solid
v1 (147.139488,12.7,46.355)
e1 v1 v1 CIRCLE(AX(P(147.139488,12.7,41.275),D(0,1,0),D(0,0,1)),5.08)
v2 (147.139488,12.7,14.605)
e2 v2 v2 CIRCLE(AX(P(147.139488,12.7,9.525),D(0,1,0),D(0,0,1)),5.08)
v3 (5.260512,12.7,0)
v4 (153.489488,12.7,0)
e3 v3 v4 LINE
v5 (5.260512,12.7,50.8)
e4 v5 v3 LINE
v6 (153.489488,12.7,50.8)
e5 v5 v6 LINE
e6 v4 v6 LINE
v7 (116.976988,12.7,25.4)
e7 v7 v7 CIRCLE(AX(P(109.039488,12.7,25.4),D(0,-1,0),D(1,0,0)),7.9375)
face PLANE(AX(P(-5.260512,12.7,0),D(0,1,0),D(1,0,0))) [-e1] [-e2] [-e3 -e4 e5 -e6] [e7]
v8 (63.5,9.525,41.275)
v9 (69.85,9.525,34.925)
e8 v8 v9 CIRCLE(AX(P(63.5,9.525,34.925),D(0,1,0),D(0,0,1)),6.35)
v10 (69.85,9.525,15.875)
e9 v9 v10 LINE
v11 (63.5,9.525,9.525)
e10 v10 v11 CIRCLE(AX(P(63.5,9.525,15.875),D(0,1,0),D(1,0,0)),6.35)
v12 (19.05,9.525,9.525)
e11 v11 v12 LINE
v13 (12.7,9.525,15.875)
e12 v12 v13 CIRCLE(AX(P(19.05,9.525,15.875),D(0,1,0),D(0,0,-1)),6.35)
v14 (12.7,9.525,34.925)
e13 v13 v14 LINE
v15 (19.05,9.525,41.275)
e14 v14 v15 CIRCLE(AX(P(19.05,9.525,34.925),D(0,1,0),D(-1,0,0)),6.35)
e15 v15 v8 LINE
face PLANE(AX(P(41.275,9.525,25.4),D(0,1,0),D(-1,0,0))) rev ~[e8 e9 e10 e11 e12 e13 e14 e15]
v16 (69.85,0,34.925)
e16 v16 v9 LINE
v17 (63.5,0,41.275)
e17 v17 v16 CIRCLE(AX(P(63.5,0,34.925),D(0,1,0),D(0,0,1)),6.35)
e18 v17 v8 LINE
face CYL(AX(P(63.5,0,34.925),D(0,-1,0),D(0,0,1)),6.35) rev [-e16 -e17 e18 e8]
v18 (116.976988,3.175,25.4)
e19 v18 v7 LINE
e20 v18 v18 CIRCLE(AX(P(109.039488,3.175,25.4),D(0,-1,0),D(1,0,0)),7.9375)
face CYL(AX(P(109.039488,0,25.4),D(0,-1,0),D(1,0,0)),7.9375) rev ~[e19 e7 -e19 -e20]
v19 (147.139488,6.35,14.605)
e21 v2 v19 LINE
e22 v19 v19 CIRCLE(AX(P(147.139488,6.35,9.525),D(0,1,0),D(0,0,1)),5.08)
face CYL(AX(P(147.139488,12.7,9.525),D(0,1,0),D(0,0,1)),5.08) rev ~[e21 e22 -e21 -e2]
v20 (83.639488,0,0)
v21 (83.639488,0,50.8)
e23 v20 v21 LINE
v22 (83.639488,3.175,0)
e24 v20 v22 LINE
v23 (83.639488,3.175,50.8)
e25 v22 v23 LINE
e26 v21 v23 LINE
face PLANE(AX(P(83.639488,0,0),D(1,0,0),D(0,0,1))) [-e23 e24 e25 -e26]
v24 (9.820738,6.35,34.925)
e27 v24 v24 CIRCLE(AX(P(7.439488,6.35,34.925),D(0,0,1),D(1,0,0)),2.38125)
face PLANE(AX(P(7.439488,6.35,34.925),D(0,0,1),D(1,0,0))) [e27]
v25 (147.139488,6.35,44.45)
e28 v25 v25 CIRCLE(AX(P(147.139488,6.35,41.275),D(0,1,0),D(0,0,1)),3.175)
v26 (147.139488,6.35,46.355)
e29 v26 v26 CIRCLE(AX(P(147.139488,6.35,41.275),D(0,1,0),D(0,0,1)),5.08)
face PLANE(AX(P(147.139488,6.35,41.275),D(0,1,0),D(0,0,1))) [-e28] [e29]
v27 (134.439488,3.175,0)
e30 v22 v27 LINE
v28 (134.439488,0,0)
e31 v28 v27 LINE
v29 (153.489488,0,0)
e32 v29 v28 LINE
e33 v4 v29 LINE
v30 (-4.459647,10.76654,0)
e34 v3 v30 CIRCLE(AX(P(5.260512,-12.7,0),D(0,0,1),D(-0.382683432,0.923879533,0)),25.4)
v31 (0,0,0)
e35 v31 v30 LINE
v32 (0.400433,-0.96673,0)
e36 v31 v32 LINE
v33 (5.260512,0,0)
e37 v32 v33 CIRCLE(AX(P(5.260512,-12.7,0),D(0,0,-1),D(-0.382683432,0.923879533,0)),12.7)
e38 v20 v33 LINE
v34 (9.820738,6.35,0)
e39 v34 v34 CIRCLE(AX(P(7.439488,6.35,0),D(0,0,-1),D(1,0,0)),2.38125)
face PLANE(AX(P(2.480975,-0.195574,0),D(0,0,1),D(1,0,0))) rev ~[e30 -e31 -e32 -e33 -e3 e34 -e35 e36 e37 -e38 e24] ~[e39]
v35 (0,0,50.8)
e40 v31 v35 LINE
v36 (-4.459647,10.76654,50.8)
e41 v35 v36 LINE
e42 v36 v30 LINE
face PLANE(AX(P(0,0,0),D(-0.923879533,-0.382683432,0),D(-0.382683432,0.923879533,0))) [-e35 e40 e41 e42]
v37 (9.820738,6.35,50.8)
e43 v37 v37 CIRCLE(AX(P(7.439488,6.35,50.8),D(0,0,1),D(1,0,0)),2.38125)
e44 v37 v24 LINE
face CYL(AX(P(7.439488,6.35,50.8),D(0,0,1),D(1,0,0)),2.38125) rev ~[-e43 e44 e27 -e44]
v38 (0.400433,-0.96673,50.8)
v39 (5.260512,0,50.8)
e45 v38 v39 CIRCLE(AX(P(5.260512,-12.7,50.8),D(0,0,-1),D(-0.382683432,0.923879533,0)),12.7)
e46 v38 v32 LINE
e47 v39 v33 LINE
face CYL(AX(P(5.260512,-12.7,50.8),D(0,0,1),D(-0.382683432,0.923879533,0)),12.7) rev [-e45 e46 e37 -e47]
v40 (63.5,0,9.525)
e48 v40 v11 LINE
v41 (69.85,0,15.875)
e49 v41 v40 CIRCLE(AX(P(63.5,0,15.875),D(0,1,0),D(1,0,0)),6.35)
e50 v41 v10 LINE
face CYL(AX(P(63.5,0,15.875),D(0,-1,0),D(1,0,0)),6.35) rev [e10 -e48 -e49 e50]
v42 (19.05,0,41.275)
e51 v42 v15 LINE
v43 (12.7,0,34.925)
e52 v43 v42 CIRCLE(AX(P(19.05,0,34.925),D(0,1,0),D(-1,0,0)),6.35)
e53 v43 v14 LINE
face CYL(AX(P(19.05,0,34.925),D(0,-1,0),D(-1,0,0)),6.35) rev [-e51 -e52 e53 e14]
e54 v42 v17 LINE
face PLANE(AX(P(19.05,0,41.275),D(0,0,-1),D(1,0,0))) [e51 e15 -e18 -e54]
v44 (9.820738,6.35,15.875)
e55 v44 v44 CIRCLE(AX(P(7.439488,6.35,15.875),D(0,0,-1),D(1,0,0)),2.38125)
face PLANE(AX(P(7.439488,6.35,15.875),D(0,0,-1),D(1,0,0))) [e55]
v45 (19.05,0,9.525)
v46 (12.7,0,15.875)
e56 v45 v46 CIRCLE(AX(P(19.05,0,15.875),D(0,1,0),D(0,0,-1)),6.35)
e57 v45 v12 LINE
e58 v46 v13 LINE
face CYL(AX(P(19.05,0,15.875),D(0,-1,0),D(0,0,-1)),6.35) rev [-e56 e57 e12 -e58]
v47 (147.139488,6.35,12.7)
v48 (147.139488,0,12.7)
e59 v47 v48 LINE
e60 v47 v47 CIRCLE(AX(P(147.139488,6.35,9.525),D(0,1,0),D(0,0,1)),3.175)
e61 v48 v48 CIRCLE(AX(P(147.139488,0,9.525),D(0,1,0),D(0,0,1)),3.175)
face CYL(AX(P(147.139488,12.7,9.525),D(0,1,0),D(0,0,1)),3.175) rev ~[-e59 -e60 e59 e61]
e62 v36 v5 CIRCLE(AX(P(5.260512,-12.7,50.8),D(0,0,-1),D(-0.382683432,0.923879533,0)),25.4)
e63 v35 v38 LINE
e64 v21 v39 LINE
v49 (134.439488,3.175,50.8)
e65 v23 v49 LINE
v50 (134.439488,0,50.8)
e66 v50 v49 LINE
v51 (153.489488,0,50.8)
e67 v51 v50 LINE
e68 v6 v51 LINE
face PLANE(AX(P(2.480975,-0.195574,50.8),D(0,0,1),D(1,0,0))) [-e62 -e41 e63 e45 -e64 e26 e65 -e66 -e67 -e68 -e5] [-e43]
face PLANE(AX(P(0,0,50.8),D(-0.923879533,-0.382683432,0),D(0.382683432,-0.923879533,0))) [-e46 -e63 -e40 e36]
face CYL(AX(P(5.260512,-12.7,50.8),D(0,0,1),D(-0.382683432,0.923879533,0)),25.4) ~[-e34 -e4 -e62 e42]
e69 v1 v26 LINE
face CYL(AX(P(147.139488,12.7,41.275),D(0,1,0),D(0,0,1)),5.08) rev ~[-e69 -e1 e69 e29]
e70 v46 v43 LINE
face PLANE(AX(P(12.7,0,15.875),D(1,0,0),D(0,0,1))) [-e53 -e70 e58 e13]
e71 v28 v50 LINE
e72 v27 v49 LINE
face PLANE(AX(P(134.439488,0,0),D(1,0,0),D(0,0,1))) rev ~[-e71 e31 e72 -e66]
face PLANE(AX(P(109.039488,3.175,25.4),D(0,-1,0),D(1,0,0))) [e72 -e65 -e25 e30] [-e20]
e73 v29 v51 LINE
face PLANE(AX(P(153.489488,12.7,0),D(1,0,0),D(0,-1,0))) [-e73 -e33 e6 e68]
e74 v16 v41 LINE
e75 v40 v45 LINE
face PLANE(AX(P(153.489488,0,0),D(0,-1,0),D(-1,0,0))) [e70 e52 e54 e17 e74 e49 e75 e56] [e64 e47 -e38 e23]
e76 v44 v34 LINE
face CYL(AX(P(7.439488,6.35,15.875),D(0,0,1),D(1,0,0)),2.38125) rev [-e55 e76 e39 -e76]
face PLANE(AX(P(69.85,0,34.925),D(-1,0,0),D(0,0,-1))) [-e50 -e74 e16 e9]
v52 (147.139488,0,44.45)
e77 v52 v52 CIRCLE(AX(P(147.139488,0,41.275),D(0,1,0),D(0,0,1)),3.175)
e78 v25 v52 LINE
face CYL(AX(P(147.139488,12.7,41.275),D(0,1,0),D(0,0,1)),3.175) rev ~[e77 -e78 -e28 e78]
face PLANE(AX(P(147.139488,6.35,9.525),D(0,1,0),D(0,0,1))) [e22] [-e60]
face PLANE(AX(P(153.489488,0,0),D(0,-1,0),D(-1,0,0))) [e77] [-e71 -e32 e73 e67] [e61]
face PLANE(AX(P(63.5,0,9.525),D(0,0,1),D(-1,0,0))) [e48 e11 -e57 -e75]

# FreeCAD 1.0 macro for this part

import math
import FreeCAD as App
import Part
import Sketcher
Q = App.Units.Quantity

doc = App.newDocument("Part")
params = doc.addObject("Spreadsheet::Sheet", "Params")
for row, (alias, value) in enumerate([
    ("sketch1_height", "0.5 in"),
    ("sketch1_width", "6.25 in"),
    ("pad1_length", "2 in"),
    ("sketch2_radius", "0.25 in"),
    ("pocket1_length", "0.375 in"),
    ("sketch3_diameter", "0.625 in"),
    ("sketch4_width", "2 in"),
    ("pocket3_length", "0.125 in"),
    ("sketch5_diameter", "0.1875 in"),
    ("pocket4_length", "0.625 in"),
    ("sketch6_diameter", "0.1875 in"),
    ("pocket5_length", "0.625 in"),
    ("sketch7_diameter", "0.25 in"),
    ("sketch8_diameter", "0.4 in"),
    ("pocket7_length", "0.25 in"),
    ("sketch9_radius", "1 in"),
    ("sketch10_radius", "0.5 in"),
    ("pad2_length", "2 in"),
], start=1):
    params.set(f"A{row}", alias)
    params.set(f"B{row}", "=" + value)
    params.setAlias(f"B{row}", alias)

body = doc.addObject("PartDesign::Body", "Body")

sketch1 = body.newObject("Sketcher::SketchObject", "Sketch")
sketch1.AttachmentSupport = (doc.getObject("XY_Plane"), [""])
sketch1.MapMode = "FlatFace"
sketch1.addGeometry(Part.LineSegment(App.Vector(-5, 13, 0), App.Vector(0, 0, 0)), False)
sketch1.addGeometry(Part.LineSegment(App.Vector(0, 0, 0), App.Vector(153, 0, 0)), False)
sketch1.addGeometry(Part.LineSegment(App.Vector(153, 0, 0), App.Vector(153, 13, 0)), False)
sketch1.addGeometry(Part.LineSegment(App.Vector(153, 13, 0), App.Vector(-5, 13, 0)), False)
sketch1.addConstraint(Sketcher.Constraint("Coincident", 0, 2, 1, 1))
sketch1.addConstraint(Sketcher.Constraint("Coincident", 1, 2, 2, 1))
sketch1.addConstraint(Sketcher.Constraint("Coincident", 2, 2, 3, 1))
sketch1.addConstraint(Sketcher.Constraint("Coincident", 3, 2, 0, 1))
sketch1.addConstraint(Sketcher.Constraint("Horizontal", 1))
sketch1.addConstraint(Sketcher.Constraint("Vertical", 2))
sketch1.addConstraint(Sketcher.Constraint("Horizontal", 3))
sketch1.addConstraint(Sketcher.Constraint("Coincident", 0, 2, -1, 1))
sketch1.addConstraint(Sketcher.Constraint("DistanceY", 2, 1, 2, 2, Q("0.5 in")))
sketch1.addConstraint(Sketcher.Constraint("DistanceX", 3, 2, 3, 1, Q("6.25 in")))
sketch1.addConstraint(Sketcher.Constraint("Angle", 0, Q("-67.5 deg")))
sketch1.setExpression("Constraints[8]", "Params.sketch1_height")
sketch1.setExpression("Constraints[9]", "Params.sketch1_width")
pad1 = body.newObject("PartDesign::Pad", "Pad")
pad1.Profile = sketch1
pad1.setExpression("Length", "Params.pad1_length")

sketch2 = body.newObject("Sketcher::SketchObject", "Sketch001")
sketch2.AttachmentSupport = (doc.getObject("XZ_Plane"), [""])
sketch2.MapMode = "FlatFace"
sketch2.addGeometry(Part.LineSegment(App.Vector(64, 41, 0), App.Vector(19, 41, 0)), False)
sketch2.addGeometry(Part.ArcOfCircle(Part.Circle(App.Vector(19, 35, 0), App.Vector(0, 0, 1), 6), math.radians(90), math.radians(180)), False)
sketch2.addGeometry(Part.LineSegment(App.Vector(13, 35, 0), App.Vector(13, 16, 0)), False)
sketch2.addGeometry(Part.ArcOfCircle(Part.Circle(App.Vector(19, 16, 0), App.Vector(0, 0, 1), 6), math.radians(180), math.radians(270)), False)
sketch2.addGeometry(Part.LineSegment(App.Vector(19, 10, 0), App.Vector(64, 10, 0)), False)
sketch2.addGeometry(Part.ArcOfCircle(Part.Circle(App.Vector(64, 16, 0), App.Vector(0, 0, 1), 6), math.radians(-90), math.radians(0)), False)
sketch2.addGeometry(Part.LineSegment(App.Vector(70, 16, 0), App.Vector(70, 35, 0)), False)
sketch2.addGeometry(Part.ArcOfCircle(Part.Circle(App.Vector(64, 35, 0), App.Vector(0, 0, 1), 6), math.radians(0), math.radians(90)), False)
sketch2.addConstraint(Sketcher.Constraint("Tangent", 0, 2, 1, 1))
sketch2.addConstraint(Sketcher.Constraint("Tangent", 1, 2, 2, 1))
sketch2.addConstraint(Sketcher.Constraint("Tangent", 2, 2, 3, 1))
sketch2.addConstraint(Sketcher.Constraint("Tangent", 3, 2, 4, 1))
sketch2.addConstraint(Sketcher.Constraint("Tangent", 4, 2, 5, 1))
sketch2.addConstraint(Sketcher.Constraint("Tangent", 5, 2, 6, 1))
sketch2.addConstraint(Sketcher.Constraint("Tangent", 6, 2, 7, 1))
sketch2.addConstraint(Sketcher.Constraint("Tangent", 7, 2, 0, 1))
sketch2.addConstraint(Sketcher.Constraint("Horizontal", 0))
sketch2.addConstraint(Sketcher.Constraint("Vertical", 2))
sketch2.addConstraint(Sketcher.Constraint("Horizontal", 4))
sketch2.addConstraint(Sketcher.Constraint("Vertical", 6))
sketch2.addConstraint(Sketcher.Constraint("Equal", 1, 3))
sketch2.addConstraint(Sketcher.Constraint("Equal", 3, 5))
sketch2.addConstraint(Sketcher.Constraint("Equal", 5, 7))
sketch2.addConstraint(Sketcher.Constraint("Radius", 1, Q("0.25 in")))
sketch2.addConstraint(Sketcher.Constraint("DistanceY", 3, 3, 0, 2, Q("1 in")))
sketch2.addConstraint(Sketcher.Constraint("DistanceX", 1, 2, 7, 3, Q("2 in")))
sketch2.addConstraint(Sketcher.Constraint("DistanceX", -1, 1, 5, 3, Q("2.5 in")))
sketch2.addConstraint(Sketcher.Constraint("DistanceY", -1, 1, 1, 3, Q("1.375 in")))
sketch2.setExpression("Constraints[15]", "Params.sketch2_radius")
pocket1 = body.newObject("PartDesign::Pocket", "Pocket")
pocket1.Profile = sketch2
pocket1.setExpression("Length", "Params.pocket1_length")

sketch3 = body.newObject("Sketcher::SketchObject", "Sketch002")
sketch3.AttachmentSupport = (doc.getObject("XZ_Plane"), [""])
sketch3.MapMode = "FlatFace"
sketch3.addGeometry(Part.Circle(App.Vector(109, 25, 0), App.Vector(0, 0, 1), 8), False)
sketch3.addConstraint(Sketcher.Constraint("Diameter", 0, Q("0.625 in")))
sketch3.addConstraint(Sketcher.Constraint("DistanceY", -1, 1, 0, 3, Q("1 in")))
sketch3.addConstraint(Sketcher.Constraint("DistanceX", -1, 1, 0, 3, Q("109.039488 mm")))
sketch3.setExpression("Constraints[0]", "Params.sketch3_diameter")
pocket2 = body.newObject("PartDesign::Pocket", "Pocket001")
pocket2.Profile = sketch3
pocket2.Type = "ThroughAll"

sketch4 = body.newObject("Sketcher::SketchObject", "Sketch003")
sketch4.AttachmentSupport = (doc.getObject("XZ_Plane"), [""])
sketch4.MapMode = "FlatFace"
sketch4.addGeometry(Part.LineSegment(App.Vector(84, 51, 0), App.Vector(84, 0, 0)), False)
sketch4.addGeometry(Part.LineSegment(App.Vector(84, 0, 0), App.Vector(134, 0, 0)), False)
sketch4.addGeometry(Part.LineSegment(App.Vector(134, 0, 0), App.Vector(134, 51, 0)), False)
sketch4.addGeometry(Part.LineSegment(App.Vector(134, 51, 0), App.Vector(84, 51, 0)), False)
sketch4.addConstraint(Sketcher.Constraint("Coincident", 0, 2, 1, 1))
sketch4.addConstraint(Sketcher.Constraint("Coincident", 1, 2, 2, 1))
sketch4.addConstraint(Sketcher.Constraint("Coincident", 2, 2, 3, 1))
sketch4.addConstraint(Sketcher.Constraint("Coincident", 3, 2, 0, 1))
sketch4.addConstraint(Sketcher.Constraint("Vertical", 0))
sketch4.addConstraint(Sketcher.Constraint("Horizontal", 1))
sketch4.addConstraint(Sketcher.Constraint("Vertical", 2))
sketch4.addConstraint(Sketcher.Constraint("Horizontal", 3))
sketch4.addConstraint(Sketcher.Constraint("PointOnObject", 0, 2, -1))
sketch4.addConstraint(Sketcher.Constraint("Equal", 3, 0))
sketch4.addConstraint(Sketcher.Constraint("DistanceX", 1, 1, 1, 2, Q("2 in")))
sketch4.addConstraint(Sketcher.Constraint("DistanceX", -1, 1, 0, 2, Q("83.639488 mm")))
sketch4.setExpression("Constraints[10]", "Params.sketch4_width")
pocket3 = body.newObject("PartDesign::Pocket", "Pocket002")
pocket3.Profile = sketch4
pocket3.setExpression("Length", "Params.pocket3_length")

sketch5 = body.newObject("Sketcher::SketchObject", "Sketch004")
sketch5.AttachmentSupport = (doc.getObject("XY_Plane"), [""])
sketch5.MapMode = "FlatFace"
sketch5.AttachmentOffset = App.Placement(App.Vector(0, 0, 2 * 25.4), App.Rotation())
sketch5.addGeometry(Part.Circle(App.Vector(7.4, 6.3, 0), App.Vector(0, 0, 1), 2.4), False)
sketch5.addConstraint(Sketcher.Constraint("Diameter", 0, Q("0.1875 in")))
sketch5.addConstraint(Sketcher.Constraint("DistanceY", -1, 1, 0, 3, Q("0.25 in")))
sketch5.addConstraint(Sketcher.Constraint("DistanceX", -1, 1, 0, 3, Q("7.439488 mm")))
sketch5.setExpression("Constraints[0]", "Params.sketch5_diameter")
pocket4 = body.newObject("PartDesign::Pocket", "Pocket003")
pocket4.Profile = sketch5
pocket4.setExpression("Length", "Params.pocket4_length")

sketch6 = body.newObject("Sketcher::SketchObject", "Sketch005")
sketch6.AttachmentSupport = (doc.getObject("XY_Plane"), [""])
sketch6.MapMode = "FlatFace"
sketch6.AttachmentOffset = App.Placement(App.Vector(0, 0, 0.625 * 25.4), App.Rotation())
sketch6.addGeometry(Part.Circle(App.Vector(7.4, 6.3, 0), App.Vector(0, 0, 1), 2.4), False)
sketch6.addConstraint(Sketcher.Constraint("Diameter", 0, Q("0.1875 in")))
sketch6.addConstraint(Sketcher.Constraint("DistanceY", -1, 1, 0, 3, Q("0.25 in")))
sketch6.addConstraint(Sketcher.Constraint("DistanceX", -1, 1, 0, 3, Q("7.439488 mm")))
sketch6.setExpression("Constraints[0]", "Params.sketch6_diameter")
pocket5 = body.newObject("PartDesign::Pocket", "Pocket004")
pocket5.Profile = sketch6
pocket5.setExpression("Length", "Params.pocket5_length")

sketch7 = body.newObject("Sketcher::SketchObject", "Sketch006")
sketch7.AttachmentSupport = (doc.getObject("XZ_Plane"), [""])
sketch7.MapMode = "FlatFace"
sketch7.AttachmentOffset = App.Placement(App.Vector(0, 0, -0.5 * 25.4), App.Rotation())
sketch7.addGeometry(Part.Circle(App.Vector(147.1, 9.5, 0), App.Vector(0, 0, 1), 3.2), False)
sketch7.addGeometry(Part.Circle(App.Vector(147.1, 41.3, 0), App.Vector(0, 0, 1), 3.2), False)
sketch7.addConstraint(Sketcher.Constraint("Equal", 0, 1))
sketch7.addConstraint(Sketcher.Constraint("Vertical", 0, 3, 1, 3))
sketch7.addConstraint(Sketcher.Constraint("Diameter", 0, Q("0.25 in")))
sketch7.addConstraint(Sketcher.Constraint("DistanceY", 0, 3, 1, 3, Q("1.25 in")))
sketch7.addConstraint(Sketcher.Constraint("DistanceY", -1, 1, 0, 3, Q("0.375 in")))
sketch7.addConstraint(Sketcher.Constraint("DistanceX", -1, 1, 0, 3, Q("147.139488 mm")))
sketch7.setExpression("Constraints[2]", "Params.sketch7_diameter")
pocket6 = body.newObject("PartDesign::Pocket", "Pocket005")
pocket6.Profile = sketch7
pocket6.Type = "ThroughAll"
pocket6.Reversed = True

sketch8 = body.newObject("Sketcher::SketchObject", "Sketch007")
sketch8.AttachmentSupport = (doc.getObject("XZ_Plane"), [""])
sketch8.MapMode = "FlatFace"
sketch8.AttachmentOffset = App.Placement(App.Vector(0, 0, -0.5 * 25.4), App.Rotation())
sketch8.addGeometry(Part.Circle(App.Vector(147, 10, 0), App.Vector(0, 0, 1), 5), False)
sketch8.addGeometry(Part.Circle(App.Vector(147, 41, 0), App.Vector(0, 0, 1), 5), False)
sketch8.addConstraint(Sketcher.Constraint("Equal", 0, 1))
sketch8.addConstraint(Sketcher.Constraint("Vertical", 0, 3, 1, 3))
sketch8.addConstraint(Sketcher.Constraint("Diameter", 0, Q("0.4 in")))
sketch8.addConstraint(Sketcher.Constraint("DistanceY", 0, 3, 1, 3, Q("1.25 in")))
sketch8.addConstraint(Sketcher.Constraint("DistanceY", -1, 1, 0, 3, Q("0.375 in")))
sketch8.addConstraint(Sketcher.Constraint("DistanceX", -1, 1, 0, 3, Q("147.139488 mm")))
sketch8.setExpression("Constraints[2]", "Params.sketch8_diameter")
pocket7 = body.newObject("PartDesign::Pocket", "Pocket006")
pocket7.Profile = sketch8
pocket7.setExpression("Length", "Params.pocket7_length")
pocket7.Reversed = True

sketch9 = body.newObject("Sketcher::SketchObject", "Sketch008")
sketch9.AttachmentSupport = (doc.getObject("XY_Plane"), [""])
sketch9.MapMode = "FlatFace"
sketch9.AttachmentOffset = App.Placement(App.Vector(0, 0, 2 * 25.4), App.Rotation())
sketch9.addGeometry(Part.LineSegment(App.Vector(5.3, 12.7, 0), App.Vector(-5.3, 12.7, 0)), False)
sketch9.addGeometry(Part.LineSegment(App.Vector(-5.3, 12.7, 0), App.Vector(-4.5, 10.8, 0)), False)
sketch9.addGeometry(Part.ArcOfCircle(Part.Circle(App.Vector(5.3, -12.7, 0), App.Vector(0, 0, 1), 25.4), math.radians(90), math.radians(112)), False)
sketch9.addConstraint(Sketcher.Constraint("Coincident", 0, 2, 1, 1))
sketch9.addConstraint(Sketcher.Constraint("Coincident", 1, 2, 2, 2))
sketch9.addConstraint(Sketcher.Constraint("Tangent", 2, 1, 0, 1))
sketch9.addConstraint(Sketcher.Constraint("Horizontal", 0))
sketch9.addConstraint(Sketcher.Constraint("Radius", 2, Q("1 in")))
sketch9.addConstraint(Sketcher.Constraint("DistanceY", 2, 3, -1, 1, Q("0.5 in")))
sketch9.addConstraint(Sketcher.Constraint("Angle", 1, Q("-67.5 deg")))
sketch9.addConstraint(Sketcher.Constraint("Distance", 1, Q("2.092762 mm")))
sketch9.addConstraint(Sketcher.Constraint("DistanceX", -1, 1, 2, 3, Q("5.260512 mm")))
sketch9.setExpression("Constraints[4]", "Params.sketch9_radius")
pocket8 = body.newObject("PartDesign::Pocket", "Pocket007")
pocket8.Profile = sketch9
pocket8.Type = "ThroughAll"

sketch10 = body.newObject("Sketcher::SketchObject", "Sketch009")
sketch10.AttachmentSupport = (doc.getObject("XY_Plane"), [""])
sketch10.MapMode = "FlatFace"
sketch10.AttachmentOffset = App.Placement(App.Vector(0, 0, 2 * 25.4), App.Rotation())
sketch10.addGeometry(Part.LineSegment(App.Vector(0, 0, 0), App.Vector(0.4, -1, 0)), False)
sketch10.addGeometry(Part.ArcOfCircle(Part.Circle(App.Vector(5.3, -12.7, 0), App.Vector(0, 0, 1), 12.7), math.radians(90), math.radians(112)), False)
sketch10.addGeometry(Part.LineSegment(App.Vector(5.3, 0, 0), App.Vector(0, 0, 0)), False)
sketch10.addConstraint(Sketcher.Constraint("Coincident", 0, 2, 1, 2))
sketch10.addConstraint(Sketcher.Constraint("Tangent", 1, 1, 2, 1))
sketch10.addConstraint(Sketcher.Constraint("Coincident", 2, 2, 0, 1))
sketch10.addConstraint(Sketcher.Constraint("Horizontal", 2))
sketch10.addConstraint(Sketcher.Constraint("Coincident", 2, 2, -1, 1))
sketch10.addConstraint(Sketcher.Constraint("Radius", 1, Q("0.5 in")))
sketch10.addConstraint(Sketcher.Constraint("Angle", 0, Q("-67.5 deg")))
sketch10.addConstraint(Sketcher.Constraint("Distance", 0, Q("1.046381 mm")))
sketch10.setExpression("Constraints[5]", "Params.sketch10_radius")
pad2 = body.newObject("PartDesign::Pad", "Pad001")
pad2.Profile = sketch10
pad2.setExpression("Length", "Params.pad2_length")
pad2.Reversed = True

doc.recompute()
